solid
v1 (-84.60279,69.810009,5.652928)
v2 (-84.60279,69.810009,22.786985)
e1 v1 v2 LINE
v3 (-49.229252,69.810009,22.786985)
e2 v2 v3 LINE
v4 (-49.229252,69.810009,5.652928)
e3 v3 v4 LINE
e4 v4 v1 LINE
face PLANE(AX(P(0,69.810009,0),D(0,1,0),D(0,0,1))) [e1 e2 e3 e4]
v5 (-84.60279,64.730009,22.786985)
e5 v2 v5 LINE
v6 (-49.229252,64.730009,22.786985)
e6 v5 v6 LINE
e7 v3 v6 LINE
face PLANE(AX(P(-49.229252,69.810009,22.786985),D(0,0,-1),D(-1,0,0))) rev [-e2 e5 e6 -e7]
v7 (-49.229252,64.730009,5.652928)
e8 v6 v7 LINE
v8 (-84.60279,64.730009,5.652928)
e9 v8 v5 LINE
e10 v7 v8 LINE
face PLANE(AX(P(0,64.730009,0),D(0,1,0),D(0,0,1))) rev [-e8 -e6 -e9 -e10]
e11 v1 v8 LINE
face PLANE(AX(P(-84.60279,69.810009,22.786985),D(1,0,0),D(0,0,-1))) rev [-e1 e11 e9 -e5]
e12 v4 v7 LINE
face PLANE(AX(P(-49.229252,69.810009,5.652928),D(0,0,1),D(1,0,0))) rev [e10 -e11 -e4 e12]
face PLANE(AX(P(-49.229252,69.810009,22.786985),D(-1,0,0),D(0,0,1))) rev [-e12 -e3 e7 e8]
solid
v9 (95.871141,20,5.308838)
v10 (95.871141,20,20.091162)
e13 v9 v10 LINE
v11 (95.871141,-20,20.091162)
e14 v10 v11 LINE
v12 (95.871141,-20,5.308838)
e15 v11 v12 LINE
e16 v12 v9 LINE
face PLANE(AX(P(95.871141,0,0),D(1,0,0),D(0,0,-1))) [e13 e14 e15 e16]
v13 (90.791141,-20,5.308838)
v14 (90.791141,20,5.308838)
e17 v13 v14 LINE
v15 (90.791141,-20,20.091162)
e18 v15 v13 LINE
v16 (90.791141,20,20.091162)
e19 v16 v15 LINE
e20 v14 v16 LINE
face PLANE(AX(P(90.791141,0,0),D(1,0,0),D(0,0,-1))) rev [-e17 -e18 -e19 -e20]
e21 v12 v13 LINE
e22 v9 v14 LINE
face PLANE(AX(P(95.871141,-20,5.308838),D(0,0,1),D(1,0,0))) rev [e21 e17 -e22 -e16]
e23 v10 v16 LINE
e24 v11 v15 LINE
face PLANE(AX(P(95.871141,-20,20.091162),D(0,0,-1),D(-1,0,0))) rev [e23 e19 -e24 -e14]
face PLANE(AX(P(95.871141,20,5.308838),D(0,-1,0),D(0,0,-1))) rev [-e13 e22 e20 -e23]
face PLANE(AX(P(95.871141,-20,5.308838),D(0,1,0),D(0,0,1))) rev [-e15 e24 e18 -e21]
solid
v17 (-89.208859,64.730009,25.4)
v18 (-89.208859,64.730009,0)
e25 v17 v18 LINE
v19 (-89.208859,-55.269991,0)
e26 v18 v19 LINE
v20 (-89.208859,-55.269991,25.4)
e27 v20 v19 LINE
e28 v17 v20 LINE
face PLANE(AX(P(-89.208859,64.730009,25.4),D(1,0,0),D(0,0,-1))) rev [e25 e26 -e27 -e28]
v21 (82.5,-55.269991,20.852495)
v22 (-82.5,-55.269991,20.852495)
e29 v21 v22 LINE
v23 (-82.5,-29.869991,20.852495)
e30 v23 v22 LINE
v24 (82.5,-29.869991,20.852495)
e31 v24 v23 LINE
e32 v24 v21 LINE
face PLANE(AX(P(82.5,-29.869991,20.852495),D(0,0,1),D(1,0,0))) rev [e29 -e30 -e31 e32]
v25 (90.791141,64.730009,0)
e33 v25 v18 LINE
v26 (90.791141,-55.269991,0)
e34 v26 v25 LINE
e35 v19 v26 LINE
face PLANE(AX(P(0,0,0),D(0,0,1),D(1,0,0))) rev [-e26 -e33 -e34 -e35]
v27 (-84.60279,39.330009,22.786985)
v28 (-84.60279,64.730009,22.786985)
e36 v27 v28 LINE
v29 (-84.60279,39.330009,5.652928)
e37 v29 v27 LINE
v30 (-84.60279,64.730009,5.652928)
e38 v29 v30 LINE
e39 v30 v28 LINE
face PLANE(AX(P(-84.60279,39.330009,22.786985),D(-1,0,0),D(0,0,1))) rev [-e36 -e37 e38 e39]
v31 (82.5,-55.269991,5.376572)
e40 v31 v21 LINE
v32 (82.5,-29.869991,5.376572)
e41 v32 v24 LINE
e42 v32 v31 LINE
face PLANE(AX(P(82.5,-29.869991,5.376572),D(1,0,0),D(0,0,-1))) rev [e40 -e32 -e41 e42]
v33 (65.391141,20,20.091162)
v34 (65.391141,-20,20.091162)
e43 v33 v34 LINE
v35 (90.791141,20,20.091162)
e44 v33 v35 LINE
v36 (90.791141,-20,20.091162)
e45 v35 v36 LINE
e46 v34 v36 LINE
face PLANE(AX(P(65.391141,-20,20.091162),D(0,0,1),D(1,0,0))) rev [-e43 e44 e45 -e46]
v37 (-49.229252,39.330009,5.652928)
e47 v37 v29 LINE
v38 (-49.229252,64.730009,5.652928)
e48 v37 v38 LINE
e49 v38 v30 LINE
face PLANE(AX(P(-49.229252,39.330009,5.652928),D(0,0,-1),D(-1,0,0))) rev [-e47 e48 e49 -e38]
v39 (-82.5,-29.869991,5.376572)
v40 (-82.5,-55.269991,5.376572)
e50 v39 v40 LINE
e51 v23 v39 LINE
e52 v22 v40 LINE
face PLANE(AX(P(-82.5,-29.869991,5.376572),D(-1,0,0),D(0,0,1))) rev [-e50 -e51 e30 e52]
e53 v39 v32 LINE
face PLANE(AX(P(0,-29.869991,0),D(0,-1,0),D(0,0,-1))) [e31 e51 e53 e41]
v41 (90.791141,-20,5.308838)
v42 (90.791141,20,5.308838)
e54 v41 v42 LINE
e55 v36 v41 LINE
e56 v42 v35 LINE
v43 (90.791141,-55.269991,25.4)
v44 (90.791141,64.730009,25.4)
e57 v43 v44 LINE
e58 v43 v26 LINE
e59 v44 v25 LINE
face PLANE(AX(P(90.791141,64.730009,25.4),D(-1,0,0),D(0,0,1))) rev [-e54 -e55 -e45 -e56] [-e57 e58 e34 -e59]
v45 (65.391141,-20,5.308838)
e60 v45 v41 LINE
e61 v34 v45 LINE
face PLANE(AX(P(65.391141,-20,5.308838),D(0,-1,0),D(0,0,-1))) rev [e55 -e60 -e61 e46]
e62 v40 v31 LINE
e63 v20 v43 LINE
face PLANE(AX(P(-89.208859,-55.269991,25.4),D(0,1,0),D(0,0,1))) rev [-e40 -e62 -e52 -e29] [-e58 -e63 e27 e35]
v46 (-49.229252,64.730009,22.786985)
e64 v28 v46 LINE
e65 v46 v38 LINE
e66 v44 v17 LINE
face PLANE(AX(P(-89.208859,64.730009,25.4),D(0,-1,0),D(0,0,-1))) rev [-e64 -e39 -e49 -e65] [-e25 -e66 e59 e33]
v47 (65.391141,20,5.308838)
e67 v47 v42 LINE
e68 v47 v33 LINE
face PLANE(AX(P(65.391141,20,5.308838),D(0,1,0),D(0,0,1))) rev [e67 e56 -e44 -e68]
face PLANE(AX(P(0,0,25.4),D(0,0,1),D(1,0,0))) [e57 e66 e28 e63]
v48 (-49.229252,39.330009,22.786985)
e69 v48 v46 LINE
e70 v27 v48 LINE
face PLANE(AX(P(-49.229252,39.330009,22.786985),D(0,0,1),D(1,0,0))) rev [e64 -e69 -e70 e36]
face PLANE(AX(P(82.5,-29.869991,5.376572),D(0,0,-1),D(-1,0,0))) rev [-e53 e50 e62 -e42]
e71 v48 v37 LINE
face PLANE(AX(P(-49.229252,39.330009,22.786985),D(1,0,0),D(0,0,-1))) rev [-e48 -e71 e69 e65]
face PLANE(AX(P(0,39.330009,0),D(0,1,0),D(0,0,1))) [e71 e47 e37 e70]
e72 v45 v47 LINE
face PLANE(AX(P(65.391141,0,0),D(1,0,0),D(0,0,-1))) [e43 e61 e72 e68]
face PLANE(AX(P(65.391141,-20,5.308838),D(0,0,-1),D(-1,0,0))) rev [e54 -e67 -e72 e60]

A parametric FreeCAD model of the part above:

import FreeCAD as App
import Part
import Sketcher

doc = App.newDocument("Part")
body = doc.addObject("PartDesign::Body", "Body")

sketch1 = body.newObject("Sketcher::SketchObject", "Sketch")
sketch1.AttachmentSupport = (doc.getObject("XY_Plane"), [""])
sketch1.MapMode = "FlatFace"
sketch1.addGeometry(Part.LineSegment(App.Vector(-89, 65, 0), App.Vector(-89, -55, 0)), False)
sketch1.addGeometry(Part.LineSegment(App.Vector(-89, -55, 0), App.Vector(91, -55, 0)), False)
sketch1.addGeometry(Part.LineSegment(App.Vector(91, -55, 0), App.Vector(91, 65, 0)), False)
sketch1.addGeometry(Part.LineSegment(App.Vector(91, 65, 0), App.Vector(-89, 65, 0)), False)
sketch1.addConstraint(Sketcher.Constraint("Coincident", 0, 2, 1, 1))
sketch1.addConstraint(Sketcher.Constraint("Coincident", 1, 2, 2, 1))
sketch1.addConstraint(Sketcher.Constraint("Coincident", 2, 2, 3, 1))
sketch1.addConstraint(Sketcher.Constraint("Coincident", 3, 2, 0, 1))
sketch1.addConstraint(Sketcher.Constraint("Vertical", 0))
sketch1.addConstraint(Sketcher.Constraint("Horizontal", 1))
sketch1.addConstraint(Sketcher.Constraint("Vertical", 2))
sketch1.addConstraint(Sketcher.Constraint("Horizontal", 3))
sketch1.addConstraint(Sketcher.Constraint("DistanceX", 1, 1, 1, 2, 180.0))
sketch1.addConstraint(Sketcher.Constraint("DistanceY", 0, 2, 0, 1, 120.0))
sketch1.addConstraint(Sketcher.Constraint("DistanceX", 0, 2, -1, 1, 89.208859))
sketch1.addConstraint(Sketcher.Constraint("DistanceY", 0, 2, -1, 1, 55.269991))
pad1 = body.newObject("PartDesign::Pad", "Pad")
pad1.Profile = sketch1
pad1.Length = 25.4

sketch2 = body.newObject("Sketcher::SketchObject", "Sketch001")
sketch2.AttachmentSupport = (doc.getObject("XZ_Plane"), [""])
sketch2.MapMode = "FlatFace"
sketch2.AttachmentOffset = App.Placement(App.Vector(0, 0, 55.269991), App.Rotation())
sketch2.addGeometry(Part.LineSegment(App.Vector(-82, 21, 0), App.Vector(-82, 5, 0)), False)
sketch2.addGeometry(Part.LineSegment(App.Vector(-82, 5, 0), App.Vector(82, 5, 0)), False)
sketch2.addGeometry(Part.LineSegment(App.Vector(82, 5, 0), App.Vector(82, 21, 0)), False)
sketch2.addGeometry(Part.LineSegment(App.Vector(82, 21, 0), App.Vector(-82, 21, 0)), False)
sketch2.addConstraint(Sketcher.Constraint("Coincident", 0, 2, 1, 1))
sketch2.addConstraint(Sketcher.Constraint("Coincident", 1, 2, 2, 1))
sketch2.addConstraint(Sketcher.Constraint("Coincident", 2, 2, 3, 1))
sketch2.addConstraint(Sketcher.Constraint("Coincident", 3, 2, 0, 1))
sketch2.addConstraint(Sketcher.Constraint("Vertical", 0))
sketch2.addConstraint(Sketcher.Constraint("Horizontal", 1))
sketch2.addConstraint(Sketcher.Constraint("Vertical", 2))
sketch2.addConstraint(Sketcher.Constraint("Horizontal", 3))
sketch2.addConstraint(Sketcher.Constraint("DistanceX", 1, 1, 1, 2, 165.0))
sketch2.addConstraint(Sketcher.Constraint("DistanceX", 0, 2, -1, 1, 82.5))
sketch2.addConstraint(Sketcher.Constraint("DistanceY", 0, 2, 0, 1, 15.475923))
sketch2.addConstraint(Sketcher.Constraint("DistanceY", -1, 1, 0, 2, 5.376572))
pocket1 = body.newObject("PartDesign::Pocket", "Pocket")
pocket1.Profile = sketch2
pocket1.Length = 25.4

sketch3 = body.newObject("Sketcher::SketchObject", "Sketch002")
sketch3.AttachmentSupport = (doc.getObject("XZ_Plane"), [""])
sketch3.MapMode = "FlatFace"
sketch3.AttachmentOffset = App.Placement(App.Vector(0, 0, -64.730009), App.Rotation())
sketch3.addGeometry(Part.LineSegment(App.Vector(-85, 6, 0), App.Vector(-85, 23, 0)), False)
sketch3.addGeometry(Part.LineSegment(App.Vector(-85, 23, 0), App.Vector(-49, 23, 0)), False)
sketch3.addGeometry(Part.LineSegment(App.Vector(-49, 23, 0), App.Vector(-49, 6, 0)), False)
sketch3.addGeometry(Part.LineSegment(App.Vector(-49, 6, 0), App.Vector(-85, 6, 0)), False)
sketch3.addConstraint(Sketcher.Constraint("Coincident", 0, 2, 1, 1))
sketch3.addConstraint(Sketcher.Constraint("Coincident", 1, 2, 2, 1))
sketch3.addConstraint(Sketcher.Constraint("Coincident", 2, 2, 3, 1))
sketch3.addConstraint(Sketcher.Constraint("Coincident", 3, 2, 0, 1))
sketch3.addConstraint(Sketcher.Constraint("Vertical", 0))
sketch3.addConstraint(Sketcher.Constraint("Horizontal", 1))
sketch3.addConstraint(Sketcher.Constraint("Vertical", 2))
sketch3.addConstraint(Sketcher.Constraint("Horizontal", 3))
sketch3.addConstraint(Sketcher.Constraint("DistanceX", 1, 1, 1, 2, 35.373538))
sketch3.addConstraint(Sketcher.Constraint("DistanceY", 0, 1, 0, 2, 17.134057))
sketch3.addConstraint(Sketcher.Constraint("DistanceX", 0, 2, -1, 1, 84.60279))
sketch3.addConstraint(Sketcher.Constraint("DistanceY", -1, 1, 2, 2, 5.652928))
pocket2 = body.newObject("PartDesign::Pocket", "Pocket001")
pocket2.Profile = sketch3
pocket2.Length = 25.4
pocket2.Reversed = True

sketch4 = body.newObject("Sketcher::SketchObject", "Sketch003")
sketch4.AttachmentSupport = (doc.getObject("YZ_Plane"), [""])
sketch4.MapMode = "FlatFace"
sketch4.AttachmentOffset = App.Placement(App.Vector(0, 0, 90.791141), App.Rotation())
sketch4.addGeometry(Part.LineSegment(App.Vector(20, 20, 0), App.Vector(-20, 20, 0)), False)
sketch4.addGeometry(Part.LineSegment(App.Vector(-20, 20, 0), App.Vector(-20, 5, 0)), False)
sketch4.addGeometry(Part.LineSegment(App.Vector(-20, 5, 0), App.Vector(20, 5, 0)), False)
sketch4.addGeometry(Part.LineSegment(App.Vector(20, 5, 0), App.Vector(20, 20, 0)), False)
sketch4.addConstraint(Sketcher.Constraint("Coincident", 0, 2, 1, 1))
sketch4.addConstraint(Sketcher.Constraint("Coincident", 1, 2, 2, 1))
sketch4.addConstraint(Sketcher.Constraint("Coincident", 2, 2, 3, 1))
sketch4.addConstraint(Sketcher.Constraint("Coincident", 3, 2, 0, 1))
sketch4.addConstraint(Sketcher.Constraint("Horizontal", 0))
sketch4.addConstraint(Sketcher.Constraint("Vertical", 1))
sketch4.addConstraint(Sketcher.Constraint("Horizontal", 2))
sketch4.addConstraint(Sketcher.Constraint("Vertical", 3))
sketch4.addConstraint(Sketcher.Constraint("DistanceX", 0, 2, 0, 1, 40.0))
sketch4.addConstraint(Sketcher.Constraint("DistanceX", 0, 2, -1, 1, 20.0))
sketch4.addConstraint(Sketcher.Constraint("DistanceY", 1, 2, 1, 1, 14.782324))
sketch4.addConstraint(Sketcher.Constraint("DistanceY", -1, 1, 0, 2, 20.091162))
pocket3 = body.newObject("PartDesign::Pocket", "Pocket002")
pocket3.Profile = sketch4
pocket3.Length = 25.4
body2 = doc.addObject("PartDesign::Body", "Body001")

sketch5 = body2.newObject("Sketcher::SketchObject", "Sketch004")
sketch5.AttachmentSupport = (doc.getObject("XZ_Plane001"), [""])
sketch5.MapMode = "FlatFace"
sketch5.AttachmentOffset = App.Placement(App.Vector(0, 0, -64.730009), App.Rotation())
sketch5.addGeometry(Part.LineSegment(App.Vector(-85, 6, 0), App.Vector(-85, 23, 0)), False)
sketch5.addGeometry(Part.LineSegment(App.Vector(-85, 23, 0), App.Vector(-49, 23, 0)), False)
sketch5.addGeometry(Part.LineSegment(App.Vector(-49, 23, 0), App.Vector(-49, 6, 0)), False)
sketch5.addGeometry(Part.LineSegment(App.Vector(-49, 6, 0), App.Vector(-85, 6, 0)), False)
sketch5.addConstraint(Sketcher.Constraint("Coincident", 0, 2, 1, 1))
sketch5.addConstraint(Sketcher.Constraint("Coincident", 1, 2, 2, 1))
sketch5.addConstraint(Sketcher.Constraint("Coincident", 2, 2, 3, 1))
sketch5.addConstraint(Sketcher.Constraint("Coincident", 3, 2, 0, 1))
sketch5.addConstraint(Sketcher.Constraint("Vertical", 0))
sketch5.addConstraint(Sketcher.Constraint("Horizontal", 1))
sketch5.addConstraint(Sketcher.Constraint("Vertical", 2))
sketch5.addConstraint(Sketcher.Constraint("Horizontal", 3))
sketch5.addConstraint(Sketcher.Constraint("DistanceX", 1, 1, 1, 2, 35.373538))
sketch5.addConstraint(Sketcher.Constraint("DistanceY", 0, 1, 0, 2, 17.134057))
sketch5.addConstraint(Sketcher.Constraint("DistanceX", 0, 2, -1, 1, 84.60279))
sketch5.addConstraint(Sketcher.Constraint("DistanceY", -1, 1, 2, 2, 5.652928))
pad2 = body2.newObject("PartDesign::Pad", "Pad001")
pad2.Profile = sketch5
pad2.Length = 5.08
pad2.Reversed = True
body3 = doc.addObject("PartDesign::Body", "Body002")

sketch6 = body3.newObject("Sketcher::SketchObject", "Sketch005")
sketch6.AttachmentSupport = (doc.getObject("YZ_Plane002"), [""])
sketch6.MapMode = "FlatFace"
sketch6.AttachmentOffset = App.Placement(App.Vector(0, 0, 90.791141), App.Rotation())
sketch6.addGeometry(Part.LineSegment(App.Vector(20, 20, 0), App.Vector(-20, 20, 0)), False)
sketch6.addGeometry(Part.LineSegment(App.Vector(-20, 20, 0), App.Vector(-20, 5, 0)), False)
sketch6.addGeometry(Part.LineSegment(App.Vector(-20, 5, 0), App.Vector(20, 5, 0)), False)
sketch6.addGeometry(Part.LineSegment(App.Vector(20, 5, 0), App.Vector(20, 20, 0)), False)
sketch6.addConstraint(Sketcher.Constraint("Coincident", 0, 2, 1, 1))
sketch6.addConstraint(Sketcher.Constraint("Coincident", 1, 2, 2, 1))
sketch6.addConstraint(Sketcher.Constraint("Coincident", 2, 2, 3, 1))
sketch6.addConstraint(Sketcher.Constraint("Coincident", 3, 2, 0, 1))
sketch6.addConstraint(Sketcher.Constraint("Horizontal", 0))
sketch6.addConstraint(Sketcher.Constraint("Vertical", 1))
sketch6.addConstraint(Sketcher.Constraint("Horizontal", 2))
sketch6.addConstraint(Sketcher.Constraint("Vertical", 3))
sketch6.addConstraint(Sketcher.Constraint("DistanceX", 0, 2, 0, 1, 40.0))
sketch6.addConstraint(Sketcher.Constraint("DistanceX", 0, 2, -1, 1, 20.0))
sketch6.addConstraint(Sketcher.Constraint("DistanceY", 1, 2, 1, 1, 14.782324))
sketch6.addConstraint(Sketcher.Constraint("DistanceY", -1, 1, 0, 2, 20.091162))
pad3 = body3.newObject("PartDesign::Pad", "Pad002")
pad3.Profile = sketch6
pad3.Length = 5.08

doc.recompute()
